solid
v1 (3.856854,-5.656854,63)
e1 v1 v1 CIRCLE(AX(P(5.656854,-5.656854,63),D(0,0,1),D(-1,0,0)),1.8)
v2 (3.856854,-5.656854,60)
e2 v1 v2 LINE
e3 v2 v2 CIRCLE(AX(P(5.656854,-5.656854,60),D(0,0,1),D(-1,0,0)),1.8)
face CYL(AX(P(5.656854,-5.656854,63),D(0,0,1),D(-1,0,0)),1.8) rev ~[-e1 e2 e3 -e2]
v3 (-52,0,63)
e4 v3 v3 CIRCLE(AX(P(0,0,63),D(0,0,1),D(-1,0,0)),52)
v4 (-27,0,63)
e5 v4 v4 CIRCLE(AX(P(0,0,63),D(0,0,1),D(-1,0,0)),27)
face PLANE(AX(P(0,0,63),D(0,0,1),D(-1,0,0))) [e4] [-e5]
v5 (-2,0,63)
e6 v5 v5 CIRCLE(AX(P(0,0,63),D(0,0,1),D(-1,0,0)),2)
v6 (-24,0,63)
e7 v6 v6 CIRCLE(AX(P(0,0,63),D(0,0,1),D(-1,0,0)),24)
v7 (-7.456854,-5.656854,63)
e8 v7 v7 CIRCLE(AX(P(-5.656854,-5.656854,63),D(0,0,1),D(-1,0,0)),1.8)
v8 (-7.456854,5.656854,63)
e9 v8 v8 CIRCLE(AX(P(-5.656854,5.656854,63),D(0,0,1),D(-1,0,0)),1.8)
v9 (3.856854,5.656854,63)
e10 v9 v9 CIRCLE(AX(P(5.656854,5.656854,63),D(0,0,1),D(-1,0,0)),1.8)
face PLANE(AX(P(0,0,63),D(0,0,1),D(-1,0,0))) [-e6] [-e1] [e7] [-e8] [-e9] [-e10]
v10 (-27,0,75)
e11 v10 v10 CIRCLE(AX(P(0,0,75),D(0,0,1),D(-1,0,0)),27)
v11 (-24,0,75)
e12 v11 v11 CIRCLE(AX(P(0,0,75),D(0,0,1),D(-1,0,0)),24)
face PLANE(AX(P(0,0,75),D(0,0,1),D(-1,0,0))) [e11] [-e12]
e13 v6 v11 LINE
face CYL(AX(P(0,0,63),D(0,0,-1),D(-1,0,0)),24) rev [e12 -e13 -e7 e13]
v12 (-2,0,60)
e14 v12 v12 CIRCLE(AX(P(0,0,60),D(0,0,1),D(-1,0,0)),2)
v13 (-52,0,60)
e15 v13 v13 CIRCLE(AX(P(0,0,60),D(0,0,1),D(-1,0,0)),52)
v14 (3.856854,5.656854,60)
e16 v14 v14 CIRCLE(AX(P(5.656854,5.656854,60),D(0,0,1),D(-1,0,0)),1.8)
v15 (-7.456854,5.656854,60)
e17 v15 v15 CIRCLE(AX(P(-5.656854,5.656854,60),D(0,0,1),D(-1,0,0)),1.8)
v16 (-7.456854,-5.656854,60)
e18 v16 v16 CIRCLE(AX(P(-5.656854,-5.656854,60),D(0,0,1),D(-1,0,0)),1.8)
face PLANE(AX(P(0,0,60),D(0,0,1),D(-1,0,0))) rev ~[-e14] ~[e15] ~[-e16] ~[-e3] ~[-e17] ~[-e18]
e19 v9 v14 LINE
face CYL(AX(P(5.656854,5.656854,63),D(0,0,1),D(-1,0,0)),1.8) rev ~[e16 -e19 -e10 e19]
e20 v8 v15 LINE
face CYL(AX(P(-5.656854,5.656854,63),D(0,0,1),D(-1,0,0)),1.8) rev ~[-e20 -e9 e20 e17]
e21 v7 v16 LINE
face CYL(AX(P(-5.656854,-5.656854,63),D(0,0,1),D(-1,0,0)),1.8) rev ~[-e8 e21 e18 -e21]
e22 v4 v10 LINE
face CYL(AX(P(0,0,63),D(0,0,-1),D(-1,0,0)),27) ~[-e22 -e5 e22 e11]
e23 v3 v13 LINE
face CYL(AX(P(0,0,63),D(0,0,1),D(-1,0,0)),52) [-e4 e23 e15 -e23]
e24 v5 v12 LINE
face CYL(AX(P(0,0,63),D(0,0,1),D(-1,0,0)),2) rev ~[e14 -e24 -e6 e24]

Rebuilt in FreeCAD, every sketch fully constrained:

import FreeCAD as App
import Part
import Sketcher
Q = App.Units.Quantity

doc = App.newDocument("Part")
body = doc.addObject("PartDesign::Body", "Body")

# Sketch on XY plane
sketch1 = body.newObject("Sketcher::SketchObject", "Sketch")
sketch1.AttachmentSupport = (doc.getObject("XY_Plane"), [""])
sketch1.MapMode = "FlatFace"
sketch1.addGeometry([
    Part.Circle(App.Vector(0, 0, 0), App.Vector(0, 0, 1), 52),
    Part.Circle(App.Vector(0, 0, 0), App.Vector(0, 0, 1), 2),
], False)
sketch1.addConstraint([
    Sketcher.Constraint("Coincident", 0, 3, -1, 1),
    Sketcher.Constraint("Coincident", 1, 3, -1, 1),
    Sketcher.Constraint("Diameter", 0, Q("104 mm")),
    Sketcher.Constraint("Diameter", 1, Q("4 mm")),
])
pad1 = body.newObject("PartDesign::Pad", "Pad")
pad1.Profile = sketch1
pad1.Length = 3
pad1.Reversed = True

# Sketch on XY plane
sketch2 = body.newObject("Sketcher::SketchObject", "Sketch001")
sketch2.AttachmentSupport = (doc.getObject("XY_Plane"), [""])
sketch2.MapMode = "FlatFace"
sketch2.addGeometry([
    Part.Circle(App.Vector(0, 0, 0), App.Vector(0, 0, 1), 27),
    Part.Circle(App.Vector(0, 0, 0), App.Vector(0, 0, 1), 24),
], False)
sketch2.addConstraint([
    Sketcher.Constraint("Coincident", 0, 3, -1, 1),
    Sketcher.Constraint("Coincident", 1, 3, -1, 1),
    Sketcher.Constraint("Diameter", 0, Q("54 mm")),
    Sketcher.Constraint("Diameter", 1, Q("48 mm")),
])
pad2 = body.newObject("PartDesign::Pad", "Pad001")
pad2.Profile = sketch2
pad2.Length = 12

# Sketch on XY plane
sketch3 = body.newObject("Sketcher::SketchObject", "Sketch002")
sketch3.AttachmentSupport = (doc.getObject("XY_Plane"), [""])
sketch3.MapMode = "FlatFace"
sketch3.addGeometry([
    Part.Circle(App.Vector(5.656854, 5.656854, 0), App.Vector(0, 0, 1), 1.8),
    Part.Circle(App.Vector(-5.656854, 5.656854, 0), App.Vector(0, 0, 1), 1.8),
    Part.Circle(App.Vector(-5.656854, -5.656854, 0), App.Vector(0, 0, 1), 1.8),
    Part.Circle(App.Vector(5.656854, -5.656854, 0), App.Vector(0, 0, 1), 1.8),
], False)
sketch3.addConstraint([
    Sketcher.Constraint("Equal", 0, 1),
    Sketcher.Constraint("Equal", 1, 2),
    Sketcher.Constraint("Equal", 2, 3),
    Sketcher.Constraint("Symmetric", 0, 3, 2, 3, -1, 1),
    Sketcher.Constraint("Symmetric", 1, 3, 3, 3, -1, 1),
    Sketcher.Constraint("Symmetric", 0, 3, 1, 3, -2),
    Sketcher.Constraint("Diameter", 0, Q("3.6 mm")),
    Sketcher.Constraint("DistanceX", -1, 1, 0, 3, Q("5.656854 mm")),
    Sketcher.Constraint("DistanceY", -1, 1, 0, 3, Q("5.656854 mm")),
])
pocket1 = body.newObject("PartDesign::Pocket", "Pocket")
pocket1.Profile = sketch3
pocket1.Length = 5
body2 = doc.addObject("PartDesign::Body", "Body001")
doc.recompute()

body.Placement = App.Placement(App.Vector(0, 0, 63), App.Rotation(App.Vector(0, 0, -1), 180))
boolean = body2.newObject("PartDesign::Boolean", "Boolean")
boolean.Type = "Fuse"
boolean.addObjects([body])

doc.recompute()
